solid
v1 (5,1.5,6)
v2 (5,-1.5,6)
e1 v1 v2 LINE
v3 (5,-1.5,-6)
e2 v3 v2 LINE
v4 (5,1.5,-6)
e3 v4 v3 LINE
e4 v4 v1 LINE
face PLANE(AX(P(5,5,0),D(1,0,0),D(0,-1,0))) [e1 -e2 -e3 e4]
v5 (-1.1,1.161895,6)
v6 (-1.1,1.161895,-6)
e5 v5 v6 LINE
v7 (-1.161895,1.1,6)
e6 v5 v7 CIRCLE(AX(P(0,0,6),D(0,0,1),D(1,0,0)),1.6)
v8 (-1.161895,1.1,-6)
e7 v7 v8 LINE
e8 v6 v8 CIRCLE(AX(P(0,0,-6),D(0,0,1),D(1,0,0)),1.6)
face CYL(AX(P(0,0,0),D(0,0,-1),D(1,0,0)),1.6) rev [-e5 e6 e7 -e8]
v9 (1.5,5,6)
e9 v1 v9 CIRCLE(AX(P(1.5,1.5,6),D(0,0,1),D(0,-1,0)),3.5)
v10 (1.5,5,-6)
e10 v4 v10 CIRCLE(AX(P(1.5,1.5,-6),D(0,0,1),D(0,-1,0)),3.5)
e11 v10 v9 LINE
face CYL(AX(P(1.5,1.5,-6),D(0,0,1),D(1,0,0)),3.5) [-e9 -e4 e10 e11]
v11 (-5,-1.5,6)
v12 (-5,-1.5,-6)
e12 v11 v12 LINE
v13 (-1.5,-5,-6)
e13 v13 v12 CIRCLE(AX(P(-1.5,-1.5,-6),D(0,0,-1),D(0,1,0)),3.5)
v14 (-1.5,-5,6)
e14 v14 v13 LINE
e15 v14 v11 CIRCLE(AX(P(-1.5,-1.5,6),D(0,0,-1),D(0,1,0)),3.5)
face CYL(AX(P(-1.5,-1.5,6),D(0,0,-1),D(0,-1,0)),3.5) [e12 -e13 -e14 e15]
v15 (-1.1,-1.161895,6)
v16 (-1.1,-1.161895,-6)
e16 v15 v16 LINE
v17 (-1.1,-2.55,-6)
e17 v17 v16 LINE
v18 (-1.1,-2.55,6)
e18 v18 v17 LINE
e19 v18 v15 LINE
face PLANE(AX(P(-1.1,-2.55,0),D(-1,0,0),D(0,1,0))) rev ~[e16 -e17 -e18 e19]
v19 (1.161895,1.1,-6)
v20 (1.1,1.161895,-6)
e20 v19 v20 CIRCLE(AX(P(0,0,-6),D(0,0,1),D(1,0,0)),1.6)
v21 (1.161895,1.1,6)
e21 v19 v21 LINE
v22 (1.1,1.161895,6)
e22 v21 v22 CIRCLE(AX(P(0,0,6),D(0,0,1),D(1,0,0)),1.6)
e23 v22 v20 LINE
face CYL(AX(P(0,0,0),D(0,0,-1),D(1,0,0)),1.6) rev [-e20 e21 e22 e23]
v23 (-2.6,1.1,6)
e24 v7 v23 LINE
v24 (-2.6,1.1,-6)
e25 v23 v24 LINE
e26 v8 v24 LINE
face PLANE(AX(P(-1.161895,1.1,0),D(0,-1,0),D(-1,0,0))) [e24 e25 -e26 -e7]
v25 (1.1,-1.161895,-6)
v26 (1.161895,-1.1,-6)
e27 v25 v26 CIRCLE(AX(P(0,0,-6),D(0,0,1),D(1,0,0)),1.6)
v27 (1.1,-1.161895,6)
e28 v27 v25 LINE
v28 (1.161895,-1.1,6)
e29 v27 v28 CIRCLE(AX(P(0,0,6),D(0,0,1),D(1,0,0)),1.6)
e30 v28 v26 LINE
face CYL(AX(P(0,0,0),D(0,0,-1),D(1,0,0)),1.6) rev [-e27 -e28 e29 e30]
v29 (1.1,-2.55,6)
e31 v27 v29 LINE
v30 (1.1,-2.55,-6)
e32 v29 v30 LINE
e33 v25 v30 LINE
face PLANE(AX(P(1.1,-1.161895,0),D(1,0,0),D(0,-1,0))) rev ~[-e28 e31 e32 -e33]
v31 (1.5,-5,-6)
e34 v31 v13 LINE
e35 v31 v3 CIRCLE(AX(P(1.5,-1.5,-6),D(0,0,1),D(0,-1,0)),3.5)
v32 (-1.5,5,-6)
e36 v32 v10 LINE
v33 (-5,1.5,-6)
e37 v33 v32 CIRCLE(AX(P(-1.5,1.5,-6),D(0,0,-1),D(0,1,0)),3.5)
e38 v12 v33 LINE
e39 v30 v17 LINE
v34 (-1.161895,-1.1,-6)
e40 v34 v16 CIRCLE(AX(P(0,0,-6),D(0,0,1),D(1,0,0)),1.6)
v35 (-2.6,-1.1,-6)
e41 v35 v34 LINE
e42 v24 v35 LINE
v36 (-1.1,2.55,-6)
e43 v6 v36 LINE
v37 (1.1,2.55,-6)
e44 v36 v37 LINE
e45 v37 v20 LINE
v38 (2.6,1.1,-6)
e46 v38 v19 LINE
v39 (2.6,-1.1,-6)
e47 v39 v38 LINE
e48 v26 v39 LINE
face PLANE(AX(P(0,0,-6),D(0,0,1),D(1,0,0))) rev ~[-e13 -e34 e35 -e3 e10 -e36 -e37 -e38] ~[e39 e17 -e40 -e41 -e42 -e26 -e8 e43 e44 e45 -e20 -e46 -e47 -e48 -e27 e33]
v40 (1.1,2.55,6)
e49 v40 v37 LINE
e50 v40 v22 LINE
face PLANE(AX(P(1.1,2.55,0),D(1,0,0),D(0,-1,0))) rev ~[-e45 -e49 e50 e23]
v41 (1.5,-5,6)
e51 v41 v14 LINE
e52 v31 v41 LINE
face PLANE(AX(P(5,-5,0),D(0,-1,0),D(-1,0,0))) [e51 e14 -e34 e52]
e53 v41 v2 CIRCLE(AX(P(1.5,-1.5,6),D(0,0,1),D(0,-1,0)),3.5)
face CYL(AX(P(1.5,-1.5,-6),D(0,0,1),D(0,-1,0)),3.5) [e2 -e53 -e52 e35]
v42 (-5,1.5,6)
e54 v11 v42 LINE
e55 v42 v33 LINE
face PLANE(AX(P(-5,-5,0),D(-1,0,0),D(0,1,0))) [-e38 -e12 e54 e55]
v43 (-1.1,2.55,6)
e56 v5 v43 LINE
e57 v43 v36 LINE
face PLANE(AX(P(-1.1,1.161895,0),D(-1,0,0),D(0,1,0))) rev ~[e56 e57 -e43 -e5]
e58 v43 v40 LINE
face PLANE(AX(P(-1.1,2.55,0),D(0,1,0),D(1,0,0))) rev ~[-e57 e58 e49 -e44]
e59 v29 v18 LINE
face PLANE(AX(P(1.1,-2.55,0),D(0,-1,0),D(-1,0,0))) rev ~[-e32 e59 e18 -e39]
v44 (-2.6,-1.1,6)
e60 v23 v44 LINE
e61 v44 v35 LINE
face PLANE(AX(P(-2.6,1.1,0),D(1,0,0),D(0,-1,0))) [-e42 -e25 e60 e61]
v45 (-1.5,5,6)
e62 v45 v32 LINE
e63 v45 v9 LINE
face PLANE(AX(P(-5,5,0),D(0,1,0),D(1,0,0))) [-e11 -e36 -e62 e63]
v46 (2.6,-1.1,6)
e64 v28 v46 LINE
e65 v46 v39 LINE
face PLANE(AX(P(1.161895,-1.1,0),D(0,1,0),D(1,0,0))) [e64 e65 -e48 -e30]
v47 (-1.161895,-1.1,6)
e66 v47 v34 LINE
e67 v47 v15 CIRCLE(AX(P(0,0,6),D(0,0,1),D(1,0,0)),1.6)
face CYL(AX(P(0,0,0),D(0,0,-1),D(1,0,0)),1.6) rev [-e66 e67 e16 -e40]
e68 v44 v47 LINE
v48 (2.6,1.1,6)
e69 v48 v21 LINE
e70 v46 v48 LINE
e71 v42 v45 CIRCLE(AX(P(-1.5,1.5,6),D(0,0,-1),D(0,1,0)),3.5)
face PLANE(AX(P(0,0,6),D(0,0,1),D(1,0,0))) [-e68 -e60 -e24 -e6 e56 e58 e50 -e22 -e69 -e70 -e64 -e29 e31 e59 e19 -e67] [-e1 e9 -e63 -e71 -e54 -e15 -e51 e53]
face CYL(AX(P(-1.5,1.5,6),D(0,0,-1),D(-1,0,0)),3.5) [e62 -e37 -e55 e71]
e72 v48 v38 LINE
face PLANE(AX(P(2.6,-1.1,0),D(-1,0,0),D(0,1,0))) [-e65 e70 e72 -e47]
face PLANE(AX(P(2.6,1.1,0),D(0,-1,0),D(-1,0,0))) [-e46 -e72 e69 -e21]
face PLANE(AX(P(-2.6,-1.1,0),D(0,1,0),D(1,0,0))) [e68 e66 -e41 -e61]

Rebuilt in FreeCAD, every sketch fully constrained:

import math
import FreeCAD as App
import Part
import Sketcher

V = App.Vector
Q = App.Units.Quantity


def edges_at(feature, points):
    """Names of the edges that pass closest to the given points."""
    edges = feature.Shape.Edges
    near = lambda p: min(range(len(edges)), key=lambda i: edges[i].distToShape(Part.Vertex(*p))[0])
    return sorted({f"Edge{near(p) + 1}" for p in points})

doc = App.newDocument("Part")
body = doc.addObject("PartDesign::Body", "Body")

# Sketch on XY plane
sketch1 = body.newObject("Sketcher::SketchObject", "Sketch")
sketch1.AttachmentSupport = (doc.getObject("XY_Plane"), [""])
sketch1.MapMode = "FlatFace"
sketch1.addGeometry([
    Part.LineSegment(V(-5, -5, 0), V(5, -5, 0)),  # 0
    Part.LineSegment(V(5, -5, 0), V(5, 5, 0)),  # 1
    Part.LineSegment(V(5, 5, 0), V(-5, 5, 0)),  # 2
    Part.LineSegment(V(-5, 5, 0), V(-5, -5, 0)),  # 3
    Part.ArcOfCircle(Part.Circle(V(0, 0, 0), V(0, 0, 1), 1.6), math.radians(43.43), math.radians(46.57)),  # 4
    Part.LineSegment(V(1.16, 1.1, 0), V(2.6, 1.1, 0)),  # 5
    Part.LineSegment(V(2.6, 1.1, 0), V(2.6, -1.1, 0)),  # 6
    Part.LineSegment(V(2.6, -1.1, 0), V(1.16, -1.1, 0)),  # 7
    Part.ArcOfCircle(Part.Circle(V(0, 0, 0), V(0, 0, 1), 1.6), math.radians(-46.57), math.radians(-43.43)),  # 8
    Part.LineSegment(V(1.1, -1.16, 0), V(1.1, -2.55, 0)),  # 9
    Part.LineSegment(V(1.1, -2.55, 0), V(-1.1, -2.55, 0)),  # 10
    Part.LineSegment(V(-1.1, -2.55, 0), V(-1.1, -1.16, 0)),  # 11
    Part.ArcOfCircle(Part.Circle(V(0, 0, 0), V(0, 0, 1), 1.6), math.radians(-136.57), math.radians(-133.43)),  # 12
    Part.LineSegment(V(-1.16, -1.1, 0), V(-2.6, -1.1, 0)),  # 13
    Part.LineSegment(V(-2.6, -1.1, 0), V(-2.6, 1.1, 0)),  # 14
    Part.LineSegment(V(-2.6, 1.1, 0), V(-1.16, 1.1, 0)),  # 15
    Part.ArcOfCircle(Part.Circle(V(0, 0, 0), V(0, 0, 1), 1.6), math.radians(133.43), math.radians(136.57)),  # 16
    Part.LineSegment(V(-1.1, 1.16, 0), V(-1.1, 2.55, 0)),  # 17
    Part.LineSegment(V(-1.1, 2.55, 0), V(1.1, 2.55, 0)),  # 18
    Part.LineSegment(V(1.1, 2.55, 0), V(1.1, 1.16, 0)),  # 19
], False)
sketch1.addConstraint([
    Sketcher.Constraint("Coincident", 0, 2, 1, 1),
    Sketcher.Constraint("Coincident", 1, 2, 2, 1),
    Sketcher.Constraint("Coincident", 2, 2, 3, 1),
    Sketcher.Constraint("Coincident", 3, 2, 0, 1),
    Sketcher.Constraint("Coincident", 4, 1, 5, 1),
    Sketcher.Constraint("Coincident", 5, 2, 6, 1),
    Sketcher.Constraint("Coincident", 6, 2, 7, 1),
    Sketcher.Constraint("Coincident", 7, 2, 8, 2),
    Sketcher.Constraint("Coincident", 8, 1, 9, 1),
    Sketcher.Constraint("Coincident", 9, 2, 10, 1),
    Sketcher.Constraint("Coincident", 10, 2, 11, 1),
    Sketcher.Constraint("Coincident", 11, 2, 12, 2),
    Sketcher.Constraint("Coincident", 12, 1, 13, 1),
    Sketcher.Constraint("Coincident", 13, 2, 14, 1),
    Sketcher.Constraint("Coincident", 14, 2, 15, 1),
    Sketcher.Constraint("Coincident", 15, 2, 16, 2),
    Sketcher.Constraint("Coincident", 16, 1, 17, 1),
    Sketcher.Constraint("Coincident", 17, 2, 18, 1),
    Sketcher.Constraint("Coincident", 18, 2, 19, 1),
    Sketcher.Constraint("Coincident", 19, 2, 4, 2),
    Sketcher.Constraint("Horizontal", 0),
    Sketcher.Constraint("Vertical", 1),
    Sketcher.Constraint("Horizontal", 2),
    Sketcher.Constraint("Vertical", 3),
    Sketcher.Constraint("Horizontal", 5),
    Sketcher.Constraint("Vertical", 6),
    Sketcher.Constraint("Horizontal", 7),
    Sketcher.Constraint("Vertical", 9),
    Sketcher.Constraint("Horizontal", 10),
    Sketcher.Constraint("Vertical", 11),
    Sketcher.Constraint("Horizontal", 13),
    Sketcher.Constraint("Vertical", 14),
    Sketcher.Constraint("Horizontal", 15),
    Sketcher.Constraint("Vertical", 17),
    Sketcher.Constraint("Horizontal", 18),
    Sketcher.Constraint("Vertical", 19),
    Sketcher.Constraint("Coincident", 4, 3, -1, 1),
    Sketcher.Constraint("Coincident", 8, 3, -1, 1),
    Sketcher.Constraint("Coincident", 12, 3, -1, 1),
    Sketcher.Constraint("Coincident", 16, 3, -1, 1),
    Sketcher.Constraint("Equal", 4, 8),
    Sketcher.Constraint("Equal", 8, 12),
    Sketcher.Constraint("Equal", 12, 16),
    Sketcher.Constraint("Symmetric", 0, 2, 2, 2, -1, 1),
    Sketcher.Constraint("Symmetric", 5, 2, 13, 2, -1, 1),
    Sketcher.Constraint("Symmetric", 9, 2, 17, 2, -1, 1),
    Sketcher.Constraint("Horizontal", 8, 1, 11, 2),
    Sketcher.Constraint("Horizontal", 7, 2, 12, 1),
    Sketcher.Constraint("Horizontal", 5, 2, 14, 2),
    Sketcher.Constraint("Horizontal", 16, 1, 19, 2),
    Sketcher.Constraint("Equal", 2, 1),
    Sketcher.Constraint("Equal", 18, 6),
    Sketcher.Constraint("Radius", 4, Q("1.6 mm")),
    Sketcher.Constraint("DistanceX", 0, 1, 0, 2, Q("10 mm")),
    Sketcher.Constraint("DistanceX", 10, 2, 10, 1, Q("2.2 mm")),
    Sketcher.Constraint("DistanceX", -1, 1, 5, 2, Q("2.6 mm")),
    Sketcher.Constraint("DistanceY", 9, 2, 9, 1, Q("1.388 mm")),
])
pad1 = body.newObject("PartDesign::Pad", "Pad")
pad1.Profile = sketch1
pad1.Length = 12
pad1.Midplane = True
doc.recompute()

fillet = body.newObject("PartDesign::Fillet", "Fillet")
fillet.Base = (pad1, edges_at(pad1, [
    (5, 5, 0),
    (-5, 5, 0),
    (5, -5, 0),
    (-5, -5, 0),
]))
fillet.Radius = 3.5

doc.recompute()
